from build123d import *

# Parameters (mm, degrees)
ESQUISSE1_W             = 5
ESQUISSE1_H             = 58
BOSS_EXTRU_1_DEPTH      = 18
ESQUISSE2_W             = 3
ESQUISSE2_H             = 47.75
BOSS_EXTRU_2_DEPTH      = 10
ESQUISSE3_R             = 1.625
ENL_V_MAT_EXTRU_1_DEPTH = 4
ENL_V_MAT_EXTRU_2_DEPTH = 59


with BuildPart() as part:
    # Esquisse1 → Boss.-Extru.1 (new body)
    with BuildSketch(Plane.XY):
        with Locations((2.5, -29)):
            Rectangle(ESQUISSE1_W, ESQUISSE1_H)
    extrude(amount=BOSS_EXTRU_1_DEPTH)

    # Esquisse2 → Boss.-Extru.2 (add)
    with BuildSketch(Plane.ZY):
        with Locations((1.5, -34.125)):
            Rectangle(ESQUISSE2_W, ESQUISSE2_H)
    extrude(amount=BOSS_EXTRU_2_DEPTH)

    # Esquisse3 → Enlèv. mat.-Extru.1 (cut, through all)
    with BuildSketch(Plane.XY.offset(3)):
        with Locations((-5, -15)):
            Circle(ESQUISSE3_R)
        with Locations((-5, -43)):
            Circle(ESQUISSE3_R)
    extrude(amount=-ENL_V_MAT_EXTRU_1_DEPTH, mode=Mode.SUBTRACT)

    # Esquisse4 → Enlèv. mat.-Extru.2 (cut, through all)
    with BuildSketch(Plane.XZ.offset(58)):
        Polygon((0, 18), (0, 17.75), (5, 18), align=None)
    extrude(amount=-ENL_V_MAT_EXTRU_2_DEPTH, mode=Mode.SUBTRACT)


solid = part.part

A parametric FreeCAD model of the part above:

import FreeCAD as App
import Part
import Sketcher
from FreeCAD import Vector

doc = App.newDocument("Part")
body = doc.addObject("PartDesign::Body", "Body")

# Sketch on XY plane
sketch1 = body.newObject("Sketcher::SketchObject", "Sketch")
sketch1.AttachmentSupport = (doc.getObject("XY_Plane"), [""])
sketch1.MapMode = "FlatFace"
sketch1.addGeometry([
    Part.LineSegment(Vector(0, 0, 0), Vector(0, -58, 0)),
    Part.LineSegment(Vector(0, -58, 0), Vector(5, -58, 0)),
    Part.LineSegment(Vector(5, -58, 0), Vector(5, 0, 0)),
    Part.LineSegment(Vector(5, 0, 0), Vector(0, 0, 0)),
], False)
sketch1.addConstraint([
    Sketcher.Constraint("Coincident", 0, 2, 1, 1),
    Sketcher.Constraint("Coincident", 1, 2, 2, 1),
    Sketcher.Constraint("Coincident", 2, 2, 3, 1),
    Sketcher.Constraint("Coincident", 3, 2, 0, 1),
    Sketcher.Constraint("Vertical", 0),
    Sketcher.Constraint("Horizontal", 1),
    Sketcher.Constraint("Vertical", 2),
    Sketcher.Constraint("Horizontal", 3),
    Sketcher.Constraint("Coincident", 3, 2, -1, 1),
    Sketcher.Constraint("DistanceX", 1, 1, 1, 2, 5.0),
    Sketcher.Constraint("DistanceY", 0, 2, 0, 1, 58.0),
])
pad1 = body.newObject("PartDesign::Pad", "Pad")
pad1.Profile = sketch1
pad1.Length = 18

# Sketch on YZ plane
sketch2 = body.newObject("Sketcher::SketchObject", "Sketch001")
sketch2.AttachmentSupport = (doc.getObject("YZ_Plane"), [""])
sketch2.MapMode = "FlatFace"
sketch2.addGeometry([
    Part.LineSegment(Vector(-10.2, 0, 0), Vector(-58, 0, 0)),
    Part.LineSegment(Vector(-58, 0, 0), Vector(-58, 3, 0)),
    Part.LineSegment(Vector(-58, 3, 0), Vector(-10.2, 3, 0)),
    Part.LineSegment(Vector(-10.2, 3, 0), Vector(-10.2, 0, 0)),
], False)
sketch2.addConstraint([
    Sketcher.Constraint("Coincident", 0, 2, 1, 1),
    Sketcher.Constraint("Coincident", 1, 2, 2, 1),
    Sketcher.Constraint("Coincident", 2, 2, 3, 1),
    Sketcher.Constraint("Coincident", 3, 2, 0, 1),
    Sketcher.Constraint("Horizontal", 0),
    Sketcher.Constraint("Vertical", 1),
    Sketcher.Constraint("Horizontal", 2),
    Sketcher.Constraint("Vertical", 3),
    Sketcher.Constraint("PointOnObject", 0, 2, -1),
    Sketcher.Constraint("DistanceY", 1, 1, 1, 2, 3.0),
    Sketcher.Constraint("DistanceX", 0, 2, -1, 1, 58.0),
    Sketcher.Constraint("DistanceX", 0, 2, 0, 1, 47.75),
])
pad2 = body.newObject("PartDesign::Pad", "Pad001")
pad2.Profile = sketch2
pad2.Length = 10
pad2.Reversed = True

# Sketch on XY plane
sketch3 = body.newObject("Sketcher::SketchObject", "Sketch002")
sketch3.AttachmentSupport = (doc.getObject("XY_Plane"), [""])
sketch3.MapMode = "FlatFace"
sketch3.AttachmentOffset = App.Placement(Vector(0, 0, 3), App.Rotation())
sketch3.addGeometry([
    Part.Circle(Vector(-5, -15, 0), Vector(0, 0, 1), 1.6),
    Part.Circle(Vector(-5, -43, 0), Vector(0, 0, 1), 1.6),
], False)
sketch3.addConstraint([
    Sketcher.Constraint("Equal", 0, 1),
    Sketcher.Constraint("Vertical", 0, 3, 1, 3),
    Sketcher.Constraint("Diameter", 0, 3.25),
    Sketcher.Constraint("DistanceX", 0, 3, -1, 1, 5.0),
    Sketcher.Constraint("DistanceY", 0, 3, -1, 1, 15.0),
    Sketcher.Constraint("DistanceY", 1, 3, -1, 1, 43.0),
])
pocket1 = body.newObject("PartDesign::Pocket", "Pocket")
pocket1.Profile = sketch3
pocket1.Type = "ThroughAll"

# Sketch on XZ plane
sketch4 = body.newObject("Sketcher::SketchObject", "Sketch003")
sketch4.AttachmentSupport = (doc.getObject("XZ_Plane"), [""])
sketch4.MapMode = "FlatFace"
sketch4.AttachmentOffset = App.Placement(Vector(0, 0, 58), App.Rotation())
sketch4.addGeometry([
    Part.LineSegment(Vector(0, 18, 0), Vector(0, 17.75, 0)),
    Part.LineSegment(Vector(0, 17.75, 0), Vector(5, 18, 0)),
    Part.LineSegment(Vector(5, 18, 0), Vector(0, 18, 0)),
], False)
sketch4.addConstraint([
    Sketcher.Constraint("Coincident", 0, 2, 1, 1),
    Sketcher.Constraint("Coincident", 1, 2, 2, 1),
    Sketcher.Constraint("Coincident", 2, 2, 0, 1),
    Sketcher.Constraint("Vertical", 0),
    Sketcher.Constraint("Horizontal", 2),
    Sketcher.Constraint("PointOnObject", 0, 2, -2),
    Sketcher.Constraint("DistanceX", 2, 2, 2, 1, 5.0),
    Sketcher.Constraint("DistanceY", -1, 1, 1, 2, 18.0),
    Sketcher.Constraint("DistanceY", 0, 2, 0, 1, 0.25),
])
pocket2 = body.newObject("PartDesign::Pocket", "Pocket001")
pocket2.Profile = sketch4
pocket2.Type = "ThroughAll"

doc.recompute()
